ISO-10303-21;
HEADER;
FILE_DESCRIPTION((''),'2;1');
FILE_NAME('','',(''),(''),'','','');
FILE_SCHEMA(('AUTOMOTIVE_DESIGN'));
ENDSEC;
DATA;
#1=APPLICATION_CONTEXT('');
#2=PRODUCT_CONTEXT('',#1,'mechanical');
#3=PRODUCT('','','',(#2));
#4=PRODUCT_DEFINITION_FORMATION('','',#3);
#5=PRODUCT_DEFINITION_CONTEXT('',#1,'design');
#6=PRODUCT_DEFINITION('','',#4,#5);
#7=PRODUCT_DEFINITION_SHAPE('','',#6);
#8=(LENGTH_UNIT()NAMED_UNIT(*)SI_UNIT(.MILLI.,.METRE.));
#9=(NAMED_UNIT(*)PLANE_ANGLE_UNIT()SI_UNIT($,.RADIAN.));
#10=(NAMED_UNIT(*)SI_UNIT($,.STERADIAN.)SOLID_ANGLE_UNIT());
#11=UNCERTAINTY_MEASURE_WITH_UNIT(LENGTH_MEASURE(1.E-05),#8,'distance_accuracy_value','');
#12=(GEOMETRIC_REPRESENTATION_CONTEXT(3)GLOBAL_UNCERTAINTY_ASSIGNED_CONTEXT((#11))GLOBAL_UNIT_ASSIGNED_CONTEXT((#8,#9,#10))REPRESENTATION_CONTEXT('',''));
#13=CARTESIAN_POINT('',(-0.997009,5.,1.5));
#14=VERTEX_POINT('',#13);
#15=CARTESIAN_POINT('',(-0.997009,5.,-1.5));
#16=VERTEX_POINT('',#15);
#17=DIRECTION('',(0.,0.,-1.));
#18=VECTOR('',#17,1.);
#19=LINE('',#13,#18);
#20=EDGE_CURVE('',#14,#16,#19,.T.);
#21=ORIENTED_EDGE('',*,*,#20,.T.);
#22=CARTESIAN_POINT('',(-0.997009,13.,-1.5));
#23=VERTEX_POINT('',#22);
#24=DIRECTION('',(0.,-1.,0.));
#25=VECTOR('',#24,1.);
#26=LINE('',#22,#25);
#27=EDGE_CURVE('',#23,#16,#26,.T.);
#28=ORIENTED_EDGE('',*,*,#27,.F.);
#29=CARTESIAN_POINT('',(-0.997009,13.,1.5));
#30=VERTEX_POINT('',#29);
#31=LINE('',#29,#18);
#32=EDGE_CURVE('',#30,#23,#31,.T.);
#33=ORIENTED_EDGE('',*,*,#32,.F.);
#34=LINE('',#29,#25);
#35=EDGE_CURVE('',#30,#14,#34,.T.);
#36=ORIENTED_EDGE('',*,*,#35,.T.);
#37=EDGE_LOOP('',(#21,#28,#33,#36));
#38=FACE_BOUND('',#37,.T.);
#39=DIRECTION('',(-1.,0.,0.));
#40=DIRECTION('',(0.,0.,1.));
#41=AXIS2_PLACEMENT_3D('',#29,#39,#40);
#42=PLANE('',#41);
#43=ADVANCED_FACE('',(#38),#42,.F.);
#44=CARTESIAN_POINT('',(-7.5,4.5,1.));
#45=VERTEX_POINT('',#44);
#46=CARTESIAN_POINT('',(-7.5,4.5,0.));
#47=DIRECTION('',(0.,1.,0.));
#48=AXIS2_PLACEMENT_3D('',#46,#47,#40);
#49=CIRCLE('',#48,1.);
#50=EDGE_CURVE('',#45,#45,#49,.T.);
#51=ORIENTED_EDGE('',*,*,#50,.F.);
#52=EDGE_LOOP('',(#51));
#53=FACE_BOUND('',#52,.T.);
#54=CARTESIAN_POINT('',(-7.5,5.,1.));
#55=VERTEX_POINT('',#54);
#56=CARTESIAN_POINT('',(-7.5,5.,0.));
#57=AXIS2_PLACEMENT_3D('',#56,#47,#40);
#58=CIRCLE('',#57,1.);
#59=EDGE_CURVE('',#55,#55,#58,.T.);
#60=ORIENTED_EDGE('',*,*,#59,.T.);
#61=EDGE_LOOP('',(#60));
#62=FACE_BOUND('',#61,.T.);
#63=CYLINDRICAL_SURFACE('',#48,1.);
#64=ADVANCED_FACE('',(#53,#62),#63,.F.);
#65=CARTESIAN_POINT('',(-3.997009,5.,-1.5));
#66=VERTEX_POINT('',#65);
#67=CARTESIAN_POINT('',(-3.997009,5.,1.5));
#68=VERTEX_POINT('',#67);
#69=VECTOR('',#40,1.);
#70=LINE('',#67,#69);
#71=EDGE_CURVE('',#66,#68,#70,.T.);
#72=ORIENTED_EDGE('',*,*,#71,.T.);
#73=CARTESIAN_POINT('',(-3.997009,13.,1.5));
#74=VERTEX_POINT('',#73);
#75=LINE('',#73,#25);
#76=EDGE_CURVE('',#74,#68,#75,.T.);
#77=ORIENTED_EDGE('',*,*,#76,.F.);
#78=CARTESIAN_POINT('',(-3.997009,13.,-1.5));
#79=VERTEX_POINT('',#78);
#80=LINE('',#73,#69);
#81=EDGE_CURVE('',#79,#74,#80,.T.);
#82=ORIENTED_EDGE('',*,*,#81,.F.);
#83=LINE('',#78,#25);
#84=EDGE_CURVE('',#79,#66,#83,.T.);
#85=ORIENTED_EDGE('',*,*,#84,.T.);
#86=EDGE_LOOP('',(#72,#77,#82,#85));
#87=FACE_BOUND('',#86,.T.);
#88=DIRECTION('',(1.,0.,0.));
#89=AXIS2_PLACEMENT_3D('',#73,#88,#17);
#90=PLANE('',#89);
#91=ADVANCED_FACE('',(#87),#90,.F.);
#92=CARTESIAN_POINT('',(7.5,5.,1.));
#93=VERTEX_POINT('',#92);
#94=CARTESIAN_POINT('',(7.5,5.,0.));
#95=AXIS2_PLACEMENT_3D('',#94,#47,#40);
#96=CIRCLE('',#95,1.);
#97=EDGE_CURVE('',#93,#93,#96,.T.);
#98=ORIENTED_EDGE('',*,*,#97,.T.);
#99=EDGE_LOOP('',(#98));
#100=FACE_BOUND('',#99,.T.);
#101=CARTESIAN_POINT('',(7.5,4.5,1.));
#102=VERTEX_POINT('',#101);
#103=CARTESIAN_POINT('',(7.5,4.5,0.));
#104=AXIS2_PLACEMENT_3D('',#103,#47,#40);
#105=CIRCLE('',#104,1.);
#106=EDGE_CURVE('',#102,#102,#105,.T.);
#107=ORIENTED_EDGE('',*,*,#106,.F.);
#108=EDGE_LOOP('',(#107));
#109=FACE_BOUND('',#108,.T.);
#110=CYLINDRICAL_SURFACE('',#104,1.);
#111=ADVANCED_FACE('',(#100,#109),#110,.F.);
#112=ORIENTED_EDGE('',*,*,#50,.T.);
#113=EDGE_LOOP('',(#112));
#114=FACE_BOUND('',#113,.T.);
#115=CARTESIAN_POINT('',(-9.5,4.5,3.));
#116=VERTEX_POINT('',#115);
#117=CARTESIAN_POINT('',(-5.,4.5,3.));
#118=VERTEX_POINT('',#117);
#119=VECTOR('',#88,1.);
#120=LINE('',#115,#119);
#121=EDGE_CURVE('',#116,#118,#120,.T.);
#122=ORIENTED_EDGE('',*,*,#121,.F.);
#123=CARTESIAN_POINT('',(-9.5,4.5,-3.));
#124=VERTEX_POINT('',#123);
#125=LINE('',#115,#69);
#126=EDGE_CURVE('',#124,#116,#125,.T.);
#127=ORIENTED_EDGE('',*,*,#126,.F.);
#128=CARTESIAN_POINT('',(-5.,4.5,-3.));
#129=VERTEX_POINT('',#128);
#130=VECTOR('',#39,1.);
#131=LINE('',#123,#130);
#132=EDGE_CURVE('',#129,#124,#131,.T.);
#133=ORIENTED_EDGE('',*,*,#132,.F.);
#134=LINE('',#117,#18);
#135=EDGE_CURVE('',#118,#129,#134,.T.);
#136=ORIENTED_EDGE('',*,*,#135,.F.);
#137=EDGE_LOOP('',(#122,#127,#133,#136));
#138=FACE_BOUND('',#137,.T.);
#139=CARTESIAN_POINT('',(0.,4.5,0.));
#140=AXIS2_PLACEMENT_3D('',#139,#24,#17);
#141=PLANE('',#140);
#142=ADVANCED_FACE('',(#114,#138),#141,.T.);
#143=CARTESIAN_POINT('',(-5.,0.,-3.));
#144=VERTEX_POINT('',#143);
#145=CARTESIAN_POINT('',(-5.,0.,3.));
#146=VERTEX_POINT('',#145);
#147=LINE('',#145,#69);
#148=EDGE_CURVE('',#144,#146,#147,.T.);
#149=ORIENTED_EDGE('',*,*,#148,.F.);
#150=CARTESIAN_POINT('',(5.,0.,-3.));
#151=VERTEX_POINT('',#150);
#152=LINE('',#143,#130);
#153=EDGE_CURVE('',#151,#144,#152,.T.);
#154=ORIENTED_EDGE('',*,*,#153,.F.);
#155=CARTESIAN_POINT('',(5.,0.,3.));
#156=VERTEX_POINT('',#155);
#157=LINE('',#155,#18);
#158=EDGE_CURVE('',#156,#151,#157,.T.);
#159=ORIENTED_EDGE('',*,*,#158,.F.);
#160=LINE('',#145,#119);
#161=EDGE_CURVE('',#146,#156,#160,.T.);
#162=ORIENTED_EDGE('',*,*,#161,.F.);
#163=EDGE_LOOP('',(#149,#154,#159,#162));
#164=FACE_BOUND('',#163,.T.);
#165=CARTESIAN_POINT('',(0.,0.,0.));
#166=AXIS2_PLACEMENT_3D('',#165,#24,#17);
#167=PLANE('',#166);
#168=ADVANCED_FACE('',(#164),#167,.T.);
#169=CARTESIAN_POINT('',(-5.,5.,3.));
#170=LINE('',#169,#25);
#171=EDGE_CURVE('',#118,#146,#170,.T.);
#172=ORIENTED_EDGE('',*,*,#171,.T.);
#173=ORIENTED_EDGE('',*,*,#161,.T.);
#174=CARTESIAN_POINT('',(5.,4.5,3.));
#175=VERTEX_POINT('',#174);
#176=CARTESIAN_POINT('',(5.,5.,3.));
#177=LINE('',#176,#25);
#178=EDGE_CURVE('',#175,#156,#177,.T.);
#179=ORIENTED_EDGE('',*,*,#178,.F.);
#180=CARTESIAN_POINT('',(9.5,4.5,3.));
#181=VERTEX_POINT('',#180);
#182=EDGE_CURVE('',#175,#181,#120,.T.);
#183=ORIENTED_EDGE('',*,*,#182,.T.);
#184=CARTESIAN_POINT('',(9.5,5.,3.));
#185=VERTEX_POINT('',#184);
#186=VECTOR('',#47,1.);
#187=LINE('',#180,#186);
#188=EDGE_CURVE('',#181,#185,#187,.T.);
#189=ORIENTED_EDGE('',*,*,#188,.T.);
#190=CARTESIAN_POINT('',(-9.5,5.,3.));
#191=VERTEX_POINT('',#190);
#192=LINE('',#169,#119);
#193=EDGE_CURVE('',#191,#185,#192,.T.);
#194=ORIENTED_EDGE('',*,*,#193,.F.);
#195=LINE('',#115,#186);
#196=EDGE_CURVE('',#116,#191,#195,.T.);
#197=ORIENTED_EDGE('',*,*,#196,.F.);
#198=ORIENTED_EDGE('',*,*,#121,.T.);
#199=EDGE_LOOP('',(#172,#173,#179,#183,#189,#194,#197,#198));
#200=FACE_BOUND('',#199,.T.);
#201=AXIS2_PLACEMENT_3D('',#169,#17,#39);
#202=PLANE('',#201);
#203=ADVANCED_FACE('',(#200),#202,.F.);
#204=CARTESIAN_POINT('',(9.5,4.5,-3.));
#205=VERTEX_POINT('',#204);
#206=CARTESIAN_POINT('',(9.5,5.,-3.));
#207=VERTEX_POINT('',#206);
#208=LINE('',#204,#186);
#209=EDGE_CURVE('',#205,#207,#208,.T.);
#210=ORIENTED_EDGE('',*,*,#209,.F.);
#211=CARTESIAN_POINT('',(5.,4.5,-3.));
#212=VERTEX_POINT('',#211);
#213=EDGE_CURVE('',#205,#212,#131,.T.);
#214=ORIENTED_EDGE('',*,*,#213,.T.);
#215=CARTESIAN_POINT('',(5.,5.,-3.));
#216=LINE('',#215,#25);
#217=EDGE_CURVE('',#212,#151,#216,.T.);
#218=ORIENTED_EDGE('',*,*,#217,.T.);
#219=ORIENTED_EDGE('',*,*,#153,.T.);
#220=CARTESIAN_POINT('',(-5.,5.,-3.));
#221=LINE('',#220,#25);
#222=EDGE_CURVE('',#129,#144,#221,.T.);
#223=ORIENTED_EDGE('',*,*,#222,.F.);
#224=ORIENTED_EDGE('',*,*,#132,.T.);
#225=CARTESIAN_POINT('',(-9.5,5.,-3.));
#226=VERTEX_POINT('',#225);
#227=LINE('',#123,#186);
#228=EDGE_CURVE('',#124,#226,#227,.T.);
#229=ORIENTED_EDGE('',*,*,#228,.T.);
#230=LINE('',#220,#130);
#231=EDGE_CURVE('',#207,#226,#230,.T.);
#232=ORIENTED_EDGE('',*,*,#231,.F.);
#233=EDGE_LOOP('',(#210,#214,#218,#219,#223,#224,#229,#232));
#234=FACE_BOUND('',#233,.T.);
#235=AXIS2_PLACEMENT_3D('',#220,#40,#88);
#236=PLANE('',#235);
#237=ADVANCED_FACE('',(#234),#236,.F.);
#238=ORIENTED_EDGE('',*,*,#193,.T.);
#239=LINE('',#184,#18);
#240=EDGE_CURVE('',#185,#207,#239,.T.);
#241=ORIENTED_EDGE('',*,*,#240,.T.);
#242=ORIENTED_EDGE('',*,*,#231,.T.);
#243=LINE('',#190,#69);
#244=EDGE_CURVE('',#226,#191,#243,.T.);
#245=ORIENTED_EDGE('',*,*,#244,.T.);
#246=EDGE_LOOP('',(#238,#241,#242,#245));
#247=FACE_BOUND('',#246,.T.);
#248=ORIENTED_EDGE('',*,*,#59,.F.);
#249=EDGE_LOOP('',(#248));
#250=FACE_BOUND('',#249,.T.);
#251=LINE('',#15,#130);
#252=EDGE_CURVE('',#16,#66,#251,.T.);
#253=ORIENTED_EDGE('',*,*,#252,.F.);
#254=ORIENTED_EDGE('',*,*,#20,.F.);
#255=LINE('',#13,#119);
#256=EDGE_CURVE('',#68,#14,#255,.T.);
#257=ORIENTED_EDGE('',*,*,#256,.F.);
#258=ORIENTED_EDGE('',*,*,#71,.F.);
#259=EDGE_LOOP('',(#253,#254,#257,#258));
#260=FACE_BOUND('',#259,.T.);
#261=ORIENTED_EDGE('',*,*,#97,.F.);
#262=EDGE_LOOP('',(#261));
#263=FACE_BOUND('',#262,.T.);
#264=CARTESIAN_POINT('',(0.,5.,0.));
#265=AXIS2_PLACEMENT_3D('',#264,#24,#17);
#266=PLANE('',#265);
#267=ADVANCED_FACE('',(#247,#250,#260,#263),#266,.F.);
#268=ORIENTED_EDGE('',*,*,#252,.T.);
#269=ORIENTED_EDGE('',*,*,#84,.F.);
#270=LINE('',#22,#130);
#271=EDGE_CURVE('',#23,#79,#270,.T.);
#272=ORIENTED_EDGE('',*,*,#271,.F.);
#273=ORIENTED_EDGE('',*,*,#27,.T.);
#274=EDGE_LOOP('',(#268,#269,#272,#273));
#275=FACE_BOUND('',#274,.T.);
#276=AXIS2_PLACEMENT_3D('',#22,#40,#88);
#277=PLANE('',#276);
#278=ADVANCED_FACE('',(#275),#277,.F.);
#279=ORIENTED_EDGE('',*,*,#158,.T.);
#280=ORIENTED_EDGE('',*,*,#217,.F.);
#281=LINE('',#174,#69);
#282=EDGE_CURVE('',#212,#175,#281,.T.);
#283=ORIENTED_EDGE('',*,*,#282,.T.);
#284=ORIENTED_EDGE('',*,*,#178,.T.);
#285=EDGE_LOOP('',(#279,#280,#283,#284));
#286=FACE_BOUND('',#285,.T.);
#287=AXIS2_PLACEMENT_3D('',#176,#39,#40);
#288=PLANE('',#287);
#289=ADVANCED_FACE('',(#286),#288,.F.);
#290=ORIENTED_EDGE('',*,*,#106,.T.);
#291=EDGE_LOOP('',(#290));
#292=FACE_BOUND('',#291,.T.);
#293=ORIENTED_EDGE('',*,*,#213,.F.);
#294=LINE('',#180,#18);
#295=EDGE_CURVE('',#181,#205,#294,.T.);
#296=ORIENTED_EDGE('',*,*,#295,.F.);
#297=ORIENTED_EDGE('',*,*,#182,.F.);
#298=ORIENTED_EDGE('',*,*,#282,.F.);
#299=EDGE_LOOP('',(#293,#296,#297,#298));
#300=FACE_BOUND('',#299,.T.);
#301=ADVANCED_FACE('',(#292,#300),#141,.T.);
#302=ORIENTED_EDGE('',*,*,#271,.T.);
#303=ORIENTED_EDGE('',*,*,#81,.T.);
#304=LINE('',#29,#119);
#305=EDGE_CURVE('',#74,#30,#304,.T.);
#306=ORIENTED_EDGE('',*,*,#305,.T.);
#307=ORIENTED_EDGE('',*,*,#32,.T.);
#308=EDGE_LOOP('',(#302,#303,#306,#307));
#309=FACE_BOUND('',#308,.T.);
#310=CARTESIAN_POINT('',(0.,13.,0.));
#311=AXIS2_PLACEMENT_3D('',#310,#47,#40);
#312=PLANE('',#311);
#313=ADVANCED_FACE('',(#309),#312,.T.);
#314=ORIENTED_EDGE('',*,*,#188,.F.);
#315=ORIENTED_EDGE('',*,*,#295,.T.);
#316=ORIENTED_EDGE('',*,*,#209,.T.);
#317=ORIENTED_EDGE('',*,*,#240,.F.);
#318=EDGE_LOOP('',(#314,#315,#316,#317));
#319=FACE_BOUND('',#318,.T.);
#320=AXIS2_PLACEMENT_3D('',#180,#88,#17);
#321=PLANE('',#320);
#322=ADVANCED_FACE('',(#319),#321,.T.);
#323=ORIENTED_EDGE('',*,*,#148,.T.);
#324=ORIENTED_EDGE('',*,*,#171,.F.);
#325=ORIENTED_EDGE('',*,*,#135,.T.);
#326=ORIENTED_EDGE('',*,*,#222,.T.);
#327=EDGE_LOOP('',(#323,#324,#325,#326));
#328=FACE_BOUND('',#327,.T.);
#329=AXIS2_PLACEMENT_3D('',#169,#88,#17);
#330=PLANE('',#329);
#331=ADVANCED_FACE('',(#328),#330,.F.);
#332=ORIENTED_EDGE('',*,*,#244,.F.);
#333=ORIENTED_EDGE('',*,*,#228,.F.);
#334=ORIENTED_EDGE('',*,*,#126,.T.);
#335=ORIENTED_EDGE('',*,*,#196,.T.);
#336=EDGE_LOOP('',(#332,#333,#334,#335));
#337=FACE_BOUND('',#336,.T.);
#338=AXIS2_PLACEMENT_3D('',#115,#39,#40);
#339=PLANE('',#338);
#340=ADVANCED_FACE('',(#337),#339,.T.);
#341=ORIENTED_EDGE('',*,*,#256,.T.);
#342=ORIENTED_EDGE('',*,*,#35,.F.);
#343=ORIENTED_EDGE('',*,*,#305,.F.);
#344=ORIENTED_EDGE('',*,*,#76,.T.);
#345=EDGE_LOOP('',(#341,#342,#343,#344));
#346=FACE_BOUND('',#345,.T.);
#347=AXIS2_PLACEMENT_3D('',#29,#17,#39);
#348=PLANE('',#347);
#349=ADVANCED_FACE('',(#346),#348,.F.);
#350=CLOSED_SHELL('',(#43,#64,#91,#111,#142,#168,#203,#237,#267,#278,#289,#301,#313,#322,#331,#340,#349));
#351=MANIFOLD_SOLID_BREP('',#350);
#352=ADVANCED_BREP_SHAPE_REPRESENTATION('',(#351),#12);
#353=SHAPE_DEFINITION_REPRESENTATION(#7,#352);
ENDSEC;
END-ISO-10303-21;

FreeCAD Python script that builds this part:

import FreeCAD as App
import Part
import Sketcher
from FreeCAD import Vector
Q = App.Units.Quantity


def add_polygon(sketch, points):
    """Adds a closed chain of lines whose ends are joined by coincident constraints."""
    first, n = sketch.GeometryCount, len(points)
    for a, b in zip(points, points[1:] + points[:1]):
        sketch.addGeometry(Part.LineSegment(App.Vector(*a, 0), App.Vector(*b, 0)), False)
    for i in range(n):
        sketch.addConstraint(Sketcher.Constraint("Coincident", first + i, 2, first + (i + 1) % n, 1))

doc = App.newDocument("Part")
body = doc.addObject("PartDesign::Body", "Body")

sketch1 = body.newObject("Sketcher::SketchObject", "Sketch")
sketch1.AttachmentSupport = (doc.getObject("XZ_Plane"), [""])
sketch1.MapMode = "FlatFace"
add_polygon(sketch1, [(-5, -3), (-5, 3), (5, 3), (5, -3)])
sketch1.addConstraint([
    Sketcher.Constraint("Vertical", 0),
    Sketcher.Constraint("Horizontal", 1),
    Sketcher.Constraint("Vertical", 2),
    Sketcher.Constraint("Horizontal", 3),
    Sketcher.Constraint("Symmetric", 0, 2, 2, 2, -1, 1),
    Sketcher.Constraint("DistanceX", 1, 1, 1, 2, Q("10 mm")),
    Sketcher.Constraint("DistanceY", 0, 1, 0, 2, Q("6 mm")),
])
pad1 = body.newObject("PartDesign::Pad", "Pad")
pad1.Profile = sketch1
pad1.Length = 5
pad1.Reversed = True

sketch2 = body.newObject("Sketcher::SketchObject", "Sketch001")
sketch2.AttachmentSupport = (doc.getObject("XZ_Plane"), [""])
sketch2.MapMode = "FlatFace"
sketch2.AttachmentOffset = App.Placement(Vector(0, 0, -5), App.Rotation())
add_polygon(sketch2, [(-9.5, -3), (-9.5, 3), (9.5, 3), (9.5, -3)])
sketch2.addGeometry(Part.Circle(Vector(-7.5, 0, 0), Vector(0, 0, 1), 1), False)
sketch2.addGeometry(Part.Circle(Vector(7.5, 0, 0), Vector(0, 0, 1), 1), False)
sketch2.addConstraint([
    Sketcher.Constraint("Vertical", 0),
    Sketcher.Constraint("Horizontal", 1),
    Sketcher.Constraint("Vertical", 2),
    Sketcher.Constraint("Horizontal", 3),
    Sketcher.Constraint("Equal", 4, 5),
    Sketcher.Constraint("Symmetric", 4, 3, 5, 3, -1, 1),
    Sketcher.Constraint("Symmetric", 0, 2, 2, 2, -1, 1),
    Sketcher.Constraint("PointOnObject", 4, 3, -1),
    Sketcher.Constraint("Diameter", 4, Q("2 mm")),
    Sketcher.Constraint("DistanceX", 1, 1, 1, 2, Q("19 mm")),
    Sketcher.Constraint("DistanceY", 0, 1, 0, 2, Q("6 mm")),
    Sketcher.Constraint("DistanceX", 4, 3, 5, 3, Q("15 mm")),
])
pad2 = body.newObject("PartDesign::Pad", "Pad001")
pad2.Profile = sketch2
pad2.Length = 0.5

sketch3 = body.newObject("Sketcher::SketchObject", "Sketch002")
sketch3.AttachmentSupport = (doc.getObject("XZ_Plane"), [""])
sketch3.MapMode = "FlatFace"
sketch3.AttachmentOffset = App.Placement(Vector(0, 0, -5), App.Rotation())
add_polygon(sketch3, [(-3.997009, -1.5), (-3.997009, 1.5), (-0.997009, 1.5), (-0.997009, -1.5)])
sketch3.addConstraint([
    Sketcher.Constraint("Vertical", 0),
    Sketcher.Constraint("Horizontal", 1),
    Sketcher.Constraint("Vertical", 2),
    Sketcher.Constraint("Horizontal", 3),
    Sketcher.Constraint("Equal", 3, 0),
    Sketcher.Constraint("DistanceX", 1, 1, 1, 2, Q("3 mm")),
    Sketcher.Constraint("DistanceY", -1, 1, 0, 2, Q("1.5 mm")),
    Sketcher.Constraint("DistanceX", 0, 2, -1, 1, Q("3.997009 mm")),
])
pad3 = body.newObject("PartDesign::Pad", "Pad002")
pad3.Profile = sketch3
pad3.Length = 8
pad3.Reversed = True

doc.recompute()
